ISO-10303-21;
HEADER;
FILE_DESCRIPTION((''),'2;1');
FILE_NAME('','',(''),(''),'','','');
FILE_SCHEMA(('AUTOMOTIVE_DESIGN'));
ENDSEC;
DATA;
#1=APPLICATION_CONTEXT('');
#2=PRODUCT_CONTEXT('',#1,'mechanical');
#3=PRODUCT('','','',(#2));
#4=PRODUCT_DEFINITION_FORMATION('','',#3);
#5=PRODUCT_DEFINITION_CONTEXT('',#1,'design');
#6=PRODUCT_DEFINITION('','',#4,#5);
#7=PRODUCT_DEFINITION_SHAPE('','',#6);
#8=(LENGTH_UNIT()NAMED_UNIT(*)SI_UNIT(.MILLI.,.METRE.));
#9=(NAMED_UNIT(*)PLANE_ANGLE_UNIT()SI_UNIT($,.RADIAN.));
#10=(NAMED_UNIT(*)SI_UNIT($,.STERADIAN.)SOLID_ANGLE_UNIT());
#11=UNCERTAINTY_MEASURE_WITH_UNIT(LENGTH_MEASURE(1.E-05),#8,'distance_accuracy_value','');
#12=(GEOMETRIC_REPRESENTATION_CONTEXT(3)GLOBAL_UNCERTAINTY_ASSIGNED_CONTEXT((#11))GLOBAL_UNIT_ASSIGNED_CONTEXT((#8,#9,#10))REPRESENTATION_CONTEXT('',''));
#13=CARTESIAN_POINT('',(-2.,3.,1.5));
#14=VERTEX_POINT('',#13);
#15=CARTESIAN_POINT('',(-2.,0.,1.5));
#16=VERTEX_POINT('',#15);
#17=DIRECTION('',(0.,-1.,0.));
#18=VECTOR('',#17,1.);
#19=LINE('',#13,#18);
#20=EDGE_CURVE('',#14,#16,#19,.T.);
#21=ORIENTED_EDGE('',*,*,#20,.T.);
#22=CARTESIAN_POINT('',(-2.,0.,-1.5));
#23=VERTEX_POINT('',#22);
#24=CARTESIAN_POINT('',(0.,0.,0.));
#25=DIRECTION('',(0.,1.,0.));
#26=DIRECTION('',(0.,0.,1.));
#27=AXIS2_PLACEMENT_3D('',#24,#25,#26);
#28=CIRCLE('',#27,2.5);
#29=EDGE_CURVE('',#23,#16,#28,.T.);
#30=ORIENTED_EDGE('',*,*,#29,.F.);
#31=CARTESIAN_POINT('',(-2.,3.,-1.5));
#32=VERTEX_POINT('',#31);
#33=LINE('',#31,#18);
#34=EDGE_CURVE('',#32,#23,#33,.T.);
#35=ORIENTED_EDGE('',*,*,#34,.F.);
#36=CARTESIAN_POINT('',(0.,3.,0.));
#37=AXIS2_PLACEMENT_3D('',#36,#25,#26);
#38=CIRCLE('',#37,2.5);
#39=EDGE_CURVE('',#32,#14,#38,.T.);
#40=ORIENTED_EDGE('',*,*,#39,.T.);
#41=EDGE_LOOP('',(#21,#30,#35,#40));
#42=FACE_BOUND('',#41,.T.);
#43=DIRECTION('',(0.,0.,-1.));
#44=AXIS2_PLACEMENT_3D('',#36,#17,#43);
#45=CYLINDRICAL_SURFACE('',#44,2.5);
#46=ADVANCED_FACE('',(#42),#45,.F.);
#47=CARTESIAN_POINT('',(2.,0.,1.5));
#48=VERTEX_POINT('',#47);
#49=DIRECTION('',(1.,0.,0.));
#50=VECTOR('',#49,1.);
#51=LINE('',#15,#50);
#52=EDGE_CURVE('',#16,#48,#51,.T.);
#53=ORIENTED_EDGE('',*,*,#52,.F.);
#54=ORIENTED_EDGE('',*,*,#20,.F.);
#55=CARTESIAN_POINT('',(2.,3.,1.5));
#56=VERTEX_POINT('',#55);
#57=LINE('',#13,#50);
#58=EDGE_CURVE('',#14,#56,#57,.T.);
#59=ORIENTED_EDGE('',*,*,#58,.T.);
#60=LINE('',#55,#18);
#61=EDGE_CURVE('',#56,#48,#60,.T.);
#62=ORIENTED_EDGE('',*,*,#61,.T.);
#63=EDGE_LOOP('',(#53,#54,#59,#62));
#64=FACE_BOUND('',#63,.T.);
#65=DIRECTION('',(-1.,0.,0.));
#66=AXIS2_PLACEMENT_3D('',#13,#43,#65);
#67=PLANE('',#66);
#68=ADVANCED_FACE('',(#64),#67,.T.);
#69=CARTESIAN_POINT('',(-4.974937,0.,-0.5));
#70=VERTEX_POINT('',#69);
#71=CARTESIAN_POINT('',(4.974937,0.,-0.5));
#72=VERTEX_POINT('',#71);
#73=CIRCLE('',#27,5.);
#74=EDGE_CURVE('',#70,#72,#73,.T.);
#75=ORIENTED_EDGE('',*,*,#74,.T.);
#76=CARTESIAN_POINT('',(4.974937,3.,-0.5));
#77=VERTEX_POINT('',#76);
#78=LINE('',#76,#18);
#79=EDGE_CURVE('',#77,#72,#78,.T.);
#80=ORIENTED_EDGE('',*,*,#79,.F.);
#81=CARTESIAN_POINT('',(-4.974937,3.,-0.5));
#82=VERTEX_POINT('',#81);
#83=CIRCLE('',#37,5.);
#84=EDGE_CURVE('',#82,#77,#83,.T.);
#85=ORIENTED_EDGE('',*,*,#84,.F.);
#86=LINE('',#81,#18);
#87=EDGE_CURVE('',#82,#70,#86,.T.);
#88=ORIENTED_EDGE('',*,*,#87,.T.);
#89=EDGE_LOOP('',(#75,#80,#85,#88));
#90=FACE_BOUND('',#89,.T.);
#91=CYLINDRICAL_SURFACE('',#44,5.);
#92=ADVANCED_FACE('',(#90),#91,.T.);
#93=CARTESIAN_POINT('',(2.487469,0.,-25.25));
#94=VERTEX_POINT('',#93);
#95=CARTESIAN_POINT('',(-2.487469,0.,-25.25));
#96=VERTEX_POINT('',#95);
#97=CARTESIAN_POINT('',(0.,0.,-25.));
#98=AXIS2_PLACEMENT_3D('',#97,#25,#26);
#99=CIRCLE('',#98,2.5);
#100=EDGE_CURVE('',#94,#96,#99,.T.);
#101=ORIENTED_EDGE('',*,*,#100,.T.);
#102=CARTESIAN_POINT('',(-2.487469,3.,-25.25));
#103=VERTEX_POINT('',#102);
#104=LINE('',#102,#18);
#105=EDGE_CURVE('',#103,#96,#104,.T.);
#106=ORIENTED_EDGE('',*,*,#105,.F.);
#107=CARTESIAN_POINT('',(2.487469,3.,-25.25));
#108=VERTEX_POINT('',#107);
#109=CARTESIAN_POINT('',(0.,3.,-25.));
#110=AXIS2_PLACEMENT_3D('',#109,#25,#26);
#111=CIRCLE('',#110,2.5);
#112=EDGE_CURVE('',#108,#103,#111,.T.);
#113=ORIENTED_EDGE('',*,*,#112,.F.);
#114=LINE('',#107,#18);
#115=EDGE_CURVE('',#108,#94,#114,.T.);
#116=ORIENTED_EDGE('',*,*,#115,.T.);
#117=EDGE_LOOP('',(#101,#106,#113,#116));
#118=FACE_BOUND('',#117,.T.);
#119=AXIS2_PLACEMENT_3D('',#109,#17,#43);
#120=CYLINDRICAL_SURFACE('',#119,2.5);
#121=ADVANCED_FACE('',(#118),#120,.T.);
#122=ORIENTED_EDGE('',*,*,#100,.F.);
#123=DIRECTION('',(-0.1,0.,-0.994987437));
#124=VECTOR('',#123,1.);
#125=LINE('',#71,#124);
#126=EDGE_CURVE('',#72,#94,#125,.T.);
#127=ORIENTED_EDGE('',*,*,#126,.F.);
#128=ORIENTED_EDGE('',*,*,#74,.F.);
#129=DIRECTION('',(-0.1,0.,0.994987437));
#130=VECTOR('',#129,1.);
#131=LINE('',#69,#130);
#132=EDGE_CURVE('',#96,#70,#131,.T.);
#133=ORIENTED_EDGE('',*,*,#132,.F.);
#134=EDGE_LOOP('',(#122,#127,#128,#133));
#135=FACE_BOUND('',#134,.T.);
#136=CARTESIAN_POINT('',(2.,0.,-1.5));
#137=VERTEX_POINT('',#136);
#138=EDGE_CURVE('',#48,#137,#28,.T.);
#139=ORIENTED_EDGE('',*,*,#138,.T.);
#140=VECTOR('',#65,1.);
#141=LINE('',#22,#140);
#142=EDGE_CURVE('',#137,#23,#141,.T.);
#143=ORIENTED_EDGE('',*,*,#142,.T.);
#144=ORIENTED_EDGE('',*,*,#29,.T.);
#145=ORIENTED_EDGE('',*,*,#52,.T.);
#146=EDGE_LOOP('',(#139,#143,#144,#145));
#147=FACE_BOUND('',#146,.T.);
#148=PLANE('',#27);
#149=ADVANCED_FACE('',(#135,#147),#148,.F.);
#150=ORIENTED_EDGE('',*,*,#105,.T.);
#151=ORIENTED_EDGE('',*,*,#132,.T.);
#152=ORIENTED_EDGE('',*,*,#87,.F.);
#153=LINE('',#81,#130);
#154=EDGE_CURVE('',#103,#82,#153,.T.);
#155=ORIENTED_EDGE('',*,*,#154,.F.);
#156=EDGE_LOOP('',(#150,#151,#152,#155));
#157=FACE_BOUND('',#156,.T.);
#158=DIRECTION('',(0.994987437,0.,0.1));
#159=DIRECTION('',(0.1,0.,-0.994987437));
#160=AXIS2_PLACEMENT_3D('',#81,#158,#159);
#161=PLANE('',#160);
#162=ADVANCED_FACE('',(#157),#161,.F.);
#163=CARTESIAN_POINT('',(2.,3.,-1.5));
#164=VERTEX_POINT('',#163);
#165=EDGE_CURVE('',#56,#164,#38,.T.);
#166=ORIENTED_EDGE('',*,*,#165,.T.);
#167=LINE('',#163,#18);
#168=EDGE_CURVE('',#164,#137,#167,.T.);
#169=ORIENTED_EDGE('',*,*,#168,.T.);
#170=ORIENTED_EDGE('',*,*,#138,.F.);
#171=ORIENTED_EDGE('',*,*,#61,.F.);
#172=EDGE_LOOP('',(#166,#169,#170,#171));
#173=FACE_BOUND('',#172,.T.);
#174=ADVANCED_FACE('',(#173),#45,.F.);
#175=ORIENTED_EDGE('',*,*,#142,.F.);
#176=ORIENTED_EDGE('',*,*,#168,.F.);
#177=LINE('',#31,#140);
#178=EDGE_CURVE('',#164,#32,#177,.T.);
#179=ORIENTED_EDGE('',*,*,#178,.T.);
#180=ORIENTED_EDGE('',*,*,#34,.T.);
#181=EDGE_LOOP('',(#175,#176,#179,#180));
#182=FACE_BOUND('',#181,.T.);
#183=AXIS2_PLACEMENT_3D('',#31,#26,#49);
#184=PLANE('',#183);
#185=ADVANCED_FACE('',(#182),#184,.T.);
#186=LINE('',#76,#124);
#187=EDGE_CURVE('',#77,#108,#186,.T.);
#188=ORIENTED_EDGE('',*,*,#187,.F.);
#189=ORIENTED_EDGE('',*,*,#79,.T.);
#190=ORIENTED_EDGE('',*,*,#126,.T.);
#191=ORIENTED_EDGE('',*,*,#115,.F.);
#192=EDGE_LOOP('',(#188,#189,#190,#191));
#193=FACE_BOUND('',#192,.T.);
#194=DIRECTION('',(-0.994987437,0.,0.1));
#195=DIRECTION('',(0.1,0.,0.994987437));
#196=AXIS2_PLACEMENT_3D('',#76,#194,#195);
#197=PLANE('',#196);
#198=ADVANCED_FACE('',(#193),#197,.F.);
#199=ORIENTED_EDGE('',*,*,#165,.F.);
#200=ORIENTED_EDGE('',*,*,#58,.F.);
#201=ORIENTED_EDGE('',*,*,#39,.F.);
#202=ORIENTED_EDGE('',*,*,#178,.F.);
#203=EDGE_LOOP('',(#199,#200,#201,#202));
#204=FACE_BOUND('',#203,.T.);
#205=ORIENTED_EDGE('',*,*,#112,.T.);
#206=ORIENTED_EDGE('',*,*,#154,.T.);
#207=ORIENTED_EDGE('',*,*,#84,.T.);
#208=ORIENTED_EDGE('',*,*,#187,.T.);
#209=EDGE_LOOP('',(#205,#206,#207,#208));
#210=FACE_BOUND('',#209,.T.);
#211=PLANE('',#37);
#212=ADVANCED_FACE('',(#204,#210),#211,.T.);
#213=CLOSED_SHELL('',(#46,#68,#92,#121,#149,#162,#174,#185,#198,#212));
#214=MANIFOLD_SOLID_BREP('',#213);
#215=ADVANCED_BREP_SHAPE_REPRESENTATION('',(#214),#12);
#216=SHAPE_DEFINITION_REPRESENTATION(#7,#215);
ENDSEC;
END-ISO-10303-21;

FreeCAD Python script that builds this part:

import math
import FreeCAD as App
import Part
import Sketcher

V = App.Vector

doc = App.newDocument("Part")
body = doc.addObject("PartDesign::Body", "Body")

# Sketch on XZ plane
sketch1 = body.newObject("Sketcher::SketchObject", "Sketch")
sketch1.AttachmentSupport = (doc.getObject("XZ_Plane"), [""])
sketch1.MapMode = "FlatFace"
sketch1.addGeometry([
    Part.LineSegment(V(-2.5, -25.2, 0), V(-5, -0.5, 0)),  # 0
    Part.ArcOfCircle(Part.Circle(V(0, 0, 0), V(0, 0, 1), 5), math.radians(-6), math.radians(186)),  # 1
    Part.LineSegment(V(5, -0.5, 0), V(2.5, -25.2, 0)),  # 2
    Part.ArcOfCircle(Part.Circle(V(0, -25, 0), V(0, 0, 1), 2.5), math.radians(-174), math.radians(-6)),  # 3
    Part.ArcOfCircle(Part.Circle(V(0, 0, 0), V(0, 0, 1), 2.5), math.radians(143), math.radians(217)),  # 4
    Part.LineSegment(V(-2, -1.5, 0), V(2, -1.5, 0)),  # 5
    Part.ArcOfCircle(Part.Circle(V(0, 0, 0), V(0, 0, 1), 2.5), math.radians(-37), math.radians(37)),  # 6
    Part.LineSegment(V(2, 1.5, 0), V(-2, 1.5, 0)),  # 7
], False)
sketch1.addConstraint([
    Sketcher.Constraint("Tangent", 0, 2, 1, 2),
    Sketcher.Constraint("Tangent", 1, 1, 2, 1),
    Sketcher.Constraint("Tangent", 2, 2, 3, 2),
    Sketcher.Constraint("Tangent", 3, 1, 0, 1),
    Sketcher.Constraint("Coincident", 4, 2, 5, 1),
    Sketcher.Constraint("Coincident", 5, 2, 6, 1),
    Sketcher.Constraint("Coincident", 6, 2, 7, 1),
    Sketcher.Constraint("Coincident", 7, 2, 4, 1),
    Sketcher.Constraint("Horizontal", 5),
    Sketcher.Constraint("Horizontal", 7),
    Sketcher.Constraint("Coincident", 1, 3, -1, 1),
    Sketcher.Constraint("Coincident", 4, 3, -1, 1),
    Sketcher.Constraint("Coincident", 6, 3, -1, 1),
    Sketcher.Constraint("Equal", 3, 4),
    Sketcher.Constraint("Equal", 4, 6),
    Sketcher.Constraint("PointOnObject", 3, 3, -2),
    Sketcher.Constraint("Vertical", 5, 2, 6, 2),
    Sketcher.Constraint("Radius", 1, 5.0),
    Sketcher.Constraint("Radius", 3, 2.5),
    Sketcher.Constraint("DistanceX", 5, 1, 5, 2, 4.0),
    Sketcher.Constraint("DistanceY", 3, 3, -1, 1, 25.0),
])
pad1 = body.newObject("PartDesign::Pad", "Pad")
pad1.Profile = sketch1
pad1.Length = 3
pad1.Reversed = True

doc.recompute()
